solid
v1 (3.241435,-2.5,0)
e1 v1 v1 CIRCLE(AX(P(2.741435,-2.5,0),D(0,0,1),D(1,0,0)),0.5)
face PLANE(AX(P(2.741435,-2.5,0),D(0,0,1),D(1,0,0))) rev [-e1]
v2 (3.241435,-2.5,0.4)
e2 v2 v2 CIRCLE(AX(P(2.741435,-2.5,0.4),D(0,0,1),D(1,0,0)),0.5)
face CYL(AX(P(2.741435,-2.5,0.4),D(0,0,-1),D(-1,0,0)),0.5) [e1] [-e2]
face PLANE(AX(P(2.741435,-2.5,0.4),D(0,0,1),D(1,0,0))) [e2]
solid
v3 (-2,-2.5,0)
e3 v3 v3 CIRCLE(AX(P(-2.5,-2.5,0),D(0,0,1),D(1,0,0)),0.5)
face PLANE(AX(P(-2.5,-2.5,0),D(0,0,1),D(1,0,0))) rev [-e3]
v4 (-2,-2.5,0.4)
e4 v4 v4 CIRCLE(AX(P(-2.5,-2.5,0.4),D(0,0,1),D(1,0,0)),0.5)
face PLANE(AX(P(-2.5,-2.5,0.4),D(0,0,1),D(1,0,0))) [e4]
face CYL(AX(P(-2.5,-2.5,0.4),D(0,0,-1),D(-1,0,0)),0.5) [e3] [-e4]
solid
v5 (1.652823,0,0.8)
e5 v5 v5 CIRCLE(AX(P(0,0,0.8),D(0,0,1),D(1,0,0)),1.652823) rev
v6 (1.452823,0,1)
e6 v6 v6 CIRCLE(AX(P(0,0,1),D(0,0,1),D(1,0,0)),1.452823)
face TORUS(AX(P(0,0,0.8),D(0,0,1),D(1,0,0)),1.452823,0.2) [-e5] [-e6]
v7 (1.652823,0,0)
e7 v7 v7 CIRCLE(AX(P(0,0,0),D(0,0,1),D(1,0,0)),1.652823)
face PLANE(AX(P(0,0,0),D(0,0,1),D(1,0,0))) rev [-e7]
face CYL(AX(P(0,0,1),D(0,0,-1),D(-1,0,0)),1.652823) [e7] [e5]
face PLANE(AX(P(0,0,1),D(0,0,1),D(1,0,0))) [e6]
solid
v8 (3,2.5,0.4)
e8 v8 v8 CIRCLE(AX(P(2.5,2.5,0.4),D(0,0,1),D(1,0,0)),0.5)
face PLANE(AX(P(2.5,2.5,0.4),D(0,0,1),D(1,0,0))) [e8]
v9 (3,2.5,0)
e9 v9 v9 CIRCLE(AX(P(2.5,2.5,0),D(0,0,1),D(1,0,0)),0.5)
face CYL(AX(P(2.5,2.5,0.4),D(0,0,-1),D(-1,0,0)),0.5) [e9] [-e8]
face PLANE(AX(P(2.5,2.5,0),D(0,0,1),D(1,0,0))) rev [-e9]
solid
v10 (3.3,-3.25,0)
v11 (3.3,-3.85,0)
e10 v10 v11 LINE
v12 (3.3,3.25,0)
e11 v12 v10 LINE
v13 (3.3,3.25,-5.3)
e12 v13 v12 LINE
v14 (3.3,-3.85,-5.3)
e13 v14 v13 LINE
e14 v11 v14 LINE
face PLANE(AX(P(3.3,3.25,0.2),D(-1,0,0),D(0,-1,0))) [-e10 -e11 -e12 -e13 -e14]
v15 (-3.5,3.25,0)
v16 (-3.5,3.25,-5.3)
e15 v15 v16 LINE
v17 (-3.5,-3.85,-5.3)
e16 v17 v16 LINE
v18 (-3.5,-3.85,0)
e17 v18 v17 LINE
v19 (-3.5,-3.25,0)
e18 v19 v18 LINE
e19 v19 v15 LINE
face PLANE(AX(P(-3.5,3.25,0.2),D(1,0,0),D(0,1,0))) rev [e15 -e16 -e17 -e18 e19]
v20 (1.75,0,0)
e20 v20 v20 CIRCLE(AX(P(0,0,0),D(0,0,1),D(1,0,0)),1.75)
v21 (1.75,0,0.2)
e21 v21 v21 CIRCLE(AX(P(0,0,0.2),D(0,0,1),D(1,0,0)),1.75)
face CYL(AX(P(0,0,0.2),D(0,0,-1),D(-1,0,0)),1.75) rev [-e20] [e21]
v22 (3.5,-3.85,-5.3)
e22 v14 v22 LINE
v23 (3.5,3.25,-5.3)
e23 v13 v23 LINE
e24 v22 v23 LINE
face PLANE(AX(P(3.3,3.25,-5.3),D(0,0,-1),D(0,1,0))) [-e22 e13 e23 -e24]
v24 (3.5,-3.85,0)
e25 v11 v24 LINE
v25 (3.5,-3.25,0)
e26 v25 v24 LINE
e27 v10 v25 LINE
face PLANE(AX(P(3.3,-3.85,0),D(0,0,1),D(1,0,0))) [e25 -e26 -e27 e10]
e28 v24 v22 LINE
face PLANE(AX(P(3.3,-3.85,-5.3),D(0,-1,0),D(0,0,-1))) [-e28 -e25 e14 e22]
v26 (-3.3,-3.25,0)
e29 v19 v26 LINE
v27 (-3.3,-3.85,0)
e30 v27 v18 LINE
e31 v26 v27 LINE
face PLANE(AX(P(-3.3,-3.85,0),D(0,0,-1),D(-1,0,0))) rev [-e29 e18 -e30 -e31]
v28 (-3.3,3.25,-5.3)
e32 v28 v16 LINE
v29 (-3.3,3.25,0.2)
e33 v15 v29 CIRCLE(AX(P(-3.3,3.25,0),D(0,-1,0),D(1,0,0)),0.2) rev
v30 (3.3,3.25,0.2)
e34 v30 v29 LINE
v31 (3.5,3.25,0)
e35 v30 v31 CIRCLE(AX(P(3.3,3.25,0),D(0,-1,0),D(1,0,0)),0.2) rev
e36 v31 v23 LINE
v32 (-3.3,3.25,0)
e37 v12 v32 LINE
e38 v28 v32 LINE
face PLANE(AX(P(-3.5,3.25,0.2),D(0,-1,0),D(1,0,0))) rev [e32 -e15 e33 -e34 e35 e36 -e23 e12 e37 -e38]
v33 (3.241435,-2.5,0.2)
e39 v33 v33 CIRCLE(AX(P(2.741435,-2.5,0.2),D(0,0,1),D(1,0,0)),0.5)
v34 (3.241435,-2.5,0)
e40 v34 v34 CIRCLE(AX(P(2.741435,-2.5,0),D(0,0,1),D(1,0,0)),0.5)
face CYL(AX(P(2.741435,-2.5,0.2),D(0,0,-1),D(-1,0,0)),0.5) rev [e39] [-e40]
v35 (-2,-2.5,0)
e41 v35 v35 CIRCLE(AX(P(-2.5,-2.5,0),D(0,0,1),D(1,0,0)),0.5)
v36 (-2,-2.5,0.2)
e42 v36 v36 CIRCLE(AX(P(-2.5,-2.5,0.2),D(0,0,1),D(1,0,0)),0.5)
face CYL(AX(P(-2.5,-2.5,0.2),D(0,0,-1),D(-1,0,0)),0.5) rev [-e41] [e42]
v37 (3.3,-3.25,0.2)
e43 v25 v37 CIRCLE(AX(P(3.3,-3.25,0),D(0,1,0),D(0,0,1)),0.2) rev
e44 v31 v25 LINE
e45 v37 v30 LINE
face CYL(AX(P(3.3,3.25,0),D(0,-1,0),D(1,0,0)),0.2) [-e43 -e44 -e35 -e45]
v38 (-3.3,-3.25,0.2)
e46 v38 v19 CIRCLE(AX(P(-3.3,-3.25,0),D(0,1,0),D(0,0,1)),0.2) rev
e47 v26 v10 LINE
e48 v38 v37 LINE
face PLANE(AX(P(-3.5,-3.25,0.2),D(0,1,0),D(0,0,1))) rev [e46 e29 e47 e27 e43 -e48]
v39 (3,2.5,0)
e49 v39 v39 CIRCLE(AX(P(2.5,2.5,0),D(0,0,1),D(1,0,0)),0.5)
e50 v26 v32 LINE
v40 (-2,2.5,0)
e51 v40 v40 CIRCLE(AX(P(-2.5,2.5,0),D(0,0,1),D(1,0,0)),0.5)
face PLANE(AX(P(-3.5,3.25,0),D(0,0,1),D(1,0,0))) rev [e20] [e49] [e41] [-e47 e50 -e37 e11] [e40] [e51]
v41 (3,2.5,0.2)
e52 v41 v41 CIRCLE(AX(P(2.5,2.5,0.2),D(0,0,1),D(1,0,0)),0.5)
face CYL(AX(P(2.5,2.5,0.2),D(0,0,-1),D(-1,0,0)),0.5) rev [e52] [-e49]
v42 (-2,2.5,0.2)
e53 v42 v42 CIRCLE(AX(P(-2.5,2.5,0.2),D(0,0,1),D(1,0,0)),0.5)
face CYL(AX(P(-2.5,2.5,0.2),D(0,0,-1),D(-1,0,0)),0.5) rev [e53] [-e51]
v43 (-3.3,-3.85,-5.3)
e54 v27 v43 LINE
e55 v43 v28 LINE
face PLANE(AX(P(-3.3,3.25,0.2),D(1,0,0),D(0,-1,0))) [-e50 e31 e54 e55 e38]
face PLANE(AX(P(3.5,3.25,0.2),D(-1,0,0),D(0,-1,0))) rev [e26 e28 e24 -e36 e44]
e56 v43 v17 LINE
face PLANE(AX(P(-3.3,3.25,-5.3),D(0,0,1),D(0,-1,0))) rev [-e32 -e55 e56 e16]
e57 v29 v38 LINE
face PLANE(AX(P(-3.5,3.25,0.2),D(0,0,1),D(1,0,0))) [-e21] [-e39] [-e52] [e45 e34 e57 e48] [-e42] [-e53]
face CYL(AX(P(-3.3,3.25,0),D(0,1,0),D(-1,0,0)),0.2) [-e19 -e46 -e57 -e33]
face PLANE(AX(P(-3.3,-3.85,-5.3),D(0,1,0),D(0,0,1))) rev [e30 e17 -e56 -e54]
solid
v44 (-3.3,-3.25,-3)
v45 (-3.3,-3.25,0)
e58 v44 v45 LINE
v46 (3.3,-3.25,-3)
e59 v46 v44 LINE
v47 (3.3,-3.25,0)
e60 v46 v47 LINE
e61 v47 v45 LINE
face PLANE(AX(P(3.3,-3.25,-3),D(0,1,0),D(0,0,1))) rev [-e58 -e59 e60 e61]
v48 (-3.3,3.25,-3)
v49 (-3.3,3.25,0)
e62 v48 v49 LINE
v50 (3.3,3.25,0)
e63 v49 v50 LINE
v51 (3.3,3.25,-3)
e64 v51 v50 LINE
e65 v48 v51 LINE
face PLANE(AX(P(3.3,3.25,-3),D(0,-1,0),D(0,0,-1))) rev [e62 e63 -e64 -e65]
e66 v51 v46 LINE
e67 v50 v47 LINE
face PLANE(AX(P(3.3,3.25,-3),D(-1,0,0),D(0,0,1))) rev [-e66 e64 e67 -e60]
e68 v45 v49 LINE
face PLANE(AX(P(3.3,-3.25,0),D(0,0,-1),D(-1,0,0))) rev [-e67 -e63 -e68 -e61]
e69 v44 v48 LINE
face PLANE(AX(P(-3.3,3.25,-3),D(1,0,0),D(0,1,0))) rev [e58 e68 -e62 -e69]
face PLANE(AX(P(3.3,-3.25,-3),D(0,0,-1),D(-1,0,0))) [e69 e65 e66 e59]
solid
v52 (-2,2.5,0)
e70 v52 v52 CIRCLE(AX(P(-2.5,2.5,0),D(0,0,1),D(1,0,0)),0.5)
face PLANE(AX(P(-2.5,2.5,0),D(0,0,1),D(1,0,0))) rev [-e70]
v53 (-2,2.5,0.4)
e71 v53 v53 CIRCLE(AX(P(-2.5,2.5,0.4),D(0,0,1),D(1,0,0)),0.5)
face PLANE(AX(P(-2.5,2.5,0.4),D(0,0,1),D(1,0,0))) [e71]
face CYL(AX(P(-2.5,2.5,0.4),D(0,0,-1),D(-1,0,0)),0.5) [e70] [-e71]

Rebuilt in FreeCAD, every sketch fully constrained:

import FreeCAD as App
import Part
import Sketcher

V = App.Vector
Q = App.Units.Quantity


def edges_at(feature, points):
    """Names of the edges that pass closest to the given points."""
    edges = feature.Shape.Edges
    near = lambda p: min(range(len(edges)), key=lambda i: edges[i].distToShape(Part.Vertex(*p))[0])
    return sorted({f"Edge{near(p) + 1}" for p in points})

doc = App.newDocument("Part")
body = doc.addObject("PartDesign::Body", "Body")

sketch1 = body.newObject("Sketcher::SketchObject", "Sketch")
sketch1.AttachmentSupport = (doc.getObject("XY_Plane"), [""])
sketch1.MapMode = "FlatFace"
sketch1.addGeometry(Part.LineSegment(V(-3.5, 3.2, 0), V(-3.5, -3.2, 0)), False)
sketch1.addGeometry(Part.LineSegment(V(-3.5, -3.2, 0), V(3.5, -3.2, 0)), False)
sketch1.addGeometry(Part.LineSegment(V(3.5, -3.2, 0), V(3.5, 3.2, 0)), False)
sketch1.addGeometry(Part.LineSegment(V(3.5, 3.2, 0), V(-3.5, 3.2, 0)), False)
sketch1.addGeometry(Part.Circle(V(-2.5, -2.5, 0), V(0, 0, 1), 0.5), False)
sketch1.addGeometry(Part.Circle(V(2.7, -2.5, 0), V(0, 0, 1), 0.5), False)
sketch1.addGeometry(Part.Circle(V(0, 0, 0), V(0, 0, 1), 1.8), False)
sketch1.addGeometry(Part.Circle(V(-2.5, 2.5, 0), V(0, 0, 1), 0.5), False)
sketch1.addGeometry(Part.Circle(V(2.5, 2.5, 0), V(0, 0, 1), 0.5), False)
sketch1.addConstraint(Sketcher.Constraint("Coincident", 0, 2, 1, 1))
sketch1.addConstraint(Sketcher.Constraint("Coincident", 1, 2, 2, 1))
sketch1.addConstraint(Sketcher.Constraint("Coincident", 2, 2, 3, 1))
sketch1.addConstraint(Sketcher.Constraint("Coincident", 3, 2, 0, 1))
sketch1.addConstraint(Sketcher.Constraint("Vertical", 0))
sketch1.addConstraint(Sketcher.Constraint("Horizontal", 1))
sketch1.addConstraint(Sketcher.Constraint("Vertical", 2))
sketch1.addConstraint(Sketcher.Constraint("Horizontal", 3))
sketch1.addConstraint(Sketcher.Constraint("Coincident", 6, 3, -1, 1))
sketch1.addConstraint(Sketcher.Constraint("Equal", 4, 5))
sketch1.addConstraint(Sketcher.Constraint("Equal", 5, 7))
sketch1.addConstraint(Sketcher.Constraint("Equal", 7, 8))
sketch1.addConstraint(Sketcher.Constraint("Symmetric", 4, 3, 8, 3, -1, 1))
sketch1.addConstraint(Sketcher.Constraint("Symmetric", 0, 2, 2, 2, -1, 1))
sketch1.addConstraint(Sketcher.Constraint("Symmetric", 7, 3, 8, 3, -2))
sketch1.addConstraint(Sketcher.Constraint("Horizontal", 4, 3, 5, 3))
sketch1.addConstraint(Sketcher.Constraint("Diameter", 4, Q("1 mm")))
sketch1.addConstraint(Sketcher.Constraint("Diameter", 6, Q("3.5 mm")))
sketch1.addConstraint(Sketcher.Constraint("DistanceX", 1, 1, 1, 2, Q("7 mm")))
sketch1.addConstraint(Sketcher.Constraint("DistanceY", 0, 2, 0, 1, Q("6.5 mm")))
sketch1.addConstraint(Sketcher.Constraint("DistanceY", 4, 3, 7, 3, Q("5 mm")))
sketch1.addConstraint(Sketcher.Constraint("DistanceX", 7, 3, 8, 3, Q("5 mm")))
sketch1.addConstraint(Sketcher.Constraint("DistanceX", -1, 1, 5, 3, Q("2.741435 mm")))
pad1 = body.newObject("PartDesign::Pad", "Pad")
pad1.Profile = sketch1
pad1.Length = 0.2

sketch2 = body.newObject("Sketcher::SketchObject", "Sketch001")
sketch2.AttachmentSupport = (doc.getObject("YZ_Plane"), [""])
sketch2.MapMode = "FlatFace"
sketch2.AttachmentOffset = App.Placement(V(0, 0, 3.5), App.Rotation())
sketch2.addGeometry(Part.LineSegment(V(3.25, -5.3, 0), V(3.25, 0.2, 0)), False)
sketch2.addGeometry(Part.LineSegment(V(3.25, 0.2, 0), V(-3.25, 0.2, 0)), False)
sketch2.addGeometry(Part.LineSegment(V(-3.25, 0.2, 0), V(-3.25, 0, 0)), False)
sketch2.addGeometry(Part.LineSegment(V(-3.25, 0, 0), V(-3.85, 0, 0)), False)
sketch2.addGeometry(Part.LineSegment(V(-3.85, 0, 0), V(-3.85, -5.3, 0)), False)
sketch2.addGeometry(Part.LineSegment(V(-3.85, -5.3, 0), V(3.25, -5.3, 0)), False)
sketch2.addConstraint(Sketcher.Constraint("Coincident", 0, 2, 1, 1))
sketch2.addConstraint(Sketcher.Constraint("Coincident", 1, 2, 2, 1))
sketch2.addConstraint(Sketcher.Constraint("Coincident", 2, 2, 3, 1))
sketch2.addConstraint(Sketcher.Constraint("Coincident", 3, 2, 4, 1))
sketch2.addConstraint(Sketcher.Constraint("Coincident", 4, 2, 5, 1))
sketch2.addConstraint(Sketcher.Constraint("Coincident", 5, 2, 0, 1))
sketch2.addConstraint(Sketcher.Constraint("Vertical", 0))
sketch2.addConstraint(Sketcher.Constraint("Horizontal", 1))
sketch2.addConstraint(Sketcher.Constraint("Vertical", 2))
sketch2.addConstraint(Sketcher.Constraint("Horizontal", 3))
sketch2.addConstraint(Sketcher.Constraint("Vertical", 4))
sketch2.addConstraint(Sketcher.Constraint("Horizontal", 5))
sketch2.addConstraint(Sketcher.Constraint("PointOnObject", 2, 2, -1))
sketch2.addConstraint(Sketcher.Constraint("DistanceX", 1, 2, 1, 1, Q("6.5 mm")))
sketch2.addConstraint(Sketcher.Constraint("DistanceX", 3, 2, 3, 1, Q("0.6 mm")))
sketch2.addConstraint(Sketcher.Constraint("DistanceY", 0, 1, 0, 2, Q("5.5 mm")))
sketch2.addConstraint(Sketcher.Constraint("DistanceY", 2, 2, 2, 1, Q("0.2 mm")))
sketch2.addConstraint(Sketcher.Constraint("DistanceX", -1, 1, 0, 2, Q("3.25 mm")))
pad2 = body.newObject("PartDesign::Pad", "Pad001")
pad2.Profile = sketch2
pad2.Length = 0.2
pad2.Reversed = True
doc.recompute()

mirrored = body.newObject("PartDesign::Mirrored", "Mirrored")
mirrored.Originals = [pad2]
mirrored.MirrorPlane = (doc.getObject("YZ_Plane"), [""])
body.Tip = mirrored
doc.recompute()

fillet = body.newObject("PartDesign::Fillet", "Fillet")
fillet.Base = (mirrored, edges_at(mirrored, [(-3.5, 0, 0.2), (3.5, 0, 0.2)]))
fillet.Radius = 0.2
body2 = doc.addObject("PartDesign::Body", "Body001")

sketch3 = body2.newObject("Sketcher::SketchObject", "Sketch002")
sketch3.AttachmentSupport = (doc.getObject("XY_Plane001"), [""])
sketch3.MapMode = "FlatFace"
sketch3.addGeometry(Part.LineSegment(V(3, 3, 0), V(3, -3, 0)), False)
sketch3.addGeometry(Part.LineSegment(V(3, -3, 0), V(-3, -3, 0)), False)
sketch3.addGeometry(Part.LineSegment(V(-3, -3, 0), V(-3, 3, 0)), False)
sketch3.addGeometry(Part.LineSegment(V(-3, 3, 0), V(3, 3, 0)), False)
sketch3.addConstraint(Sketcher.Constraint("Coincident", 0, 2, 1, 1))
sketch3.addConstraint(Sketcher.Constraint("Coincident", 1, 2, 2, 1))
sketch3.addConstraint(Sketcher.Constraint("Coincident", 2, 2, 3, 1))
sketch3.addConstraint(Sketcher.Constraint("Coincident", 3, 2, 0, 1))
sketch3.addConstraint(Sketcher.Constraint("Vertical", 0))
sketch3.addConstraint(Sketcher.Constraint("Horizontal", 1))
sketch3.addConstraint(Sketcher.Constraint("Vertical", 2))
sketch3.addConstraint(Sketcher.Constraint("Horizontal", 3))
sketch3.addConstraint(Sketcher.Constraint("Symmetric", 0, 2, 2, 2, -1, 1))
sketch3.addConstraint(Sketcher.Constraint("DistanceX", 1, 2, 1, 1, Q("6.6 mm")))
sketch3.addConstraint(Sketcher.Constraint("DistanceY", 0, 2, 0, 1, Q("6.5 mm")))
pad3 = body2.newObject("PartDesign::Pad", "Pad002")
pad3.Profile = sketch3
pad3.Length = 3
pad3.Reversed = True
body3 = doc.addObject("PartDesign::Body", "Body002")

sketch4 = body3.newObject("Sketcher::SketchObject", "Sketch003")
sketch4.AttachmentSupport = (doc.getObject("XY_Plane002"), [""])
sketch4.MapMode = "FlatFace"
sketch4.addGeometry(Part.Circle(V(0, 0, 0), V(0, 0, 1), 1.7), False)
sketch4.addConstraint(Sketcher.Constraint("Coincident", 0, 3, -1, 1))
sketch4.addConstraint(Sketcher.Constraint("Diameter", 0, Q("3.305647 mm")))
pad4 = body3.newObject("PartDesign::Pad", "Pad003")
pad4.Profile = sketch4
pad4.Length = 1
doc.recompute()

fillet2 = body3.newObject("PartDesign::Fillet", "Fillet001")
fillet2.Base = (pad4, edges_at(pad4, [(-1.653, 0, 1)]))
fillet2.Radius = 0.2
body4 = doc.addObject("PartDesign::Body", "Body003")

sketch5 = body4.newObject("Sketcher::SketchObject", "Sketch004")
sketch5.AttachmentSupport = (doc.getObject("XY_Plane003"), [""])
sketch5.MapMode = "FlatFace"
sketch5.addGeometry(Part.Circle(V(2.5, 2.5, 0), V(0, 0, 1), 0.5), False)
sketch5.addConstraint(Sketcher.Constraint("Diameter", 0, Q("1 mm")))
sketch5.addConstraint(Sketcher.Constraint("DistanceX", -1, 1, 0, 3, Q("2.5 mm")))
sketch5.addConstraint(Sketcher.Constraint("DistanceY", -1, 1, 0, 3, Q("2.5 mm")))
pad5 = body4.newObject("PartDesign::Pad", "Pad004")
pad5.Profile = sketch5
pad5.Length = 0.4
body5 = doc.addObject("PartDesign::Body", "Body004")

sketch6 = body5.newObject("Sketcher::SketchObject", "Sketch005")
sketch6.AttachmentSupport = (doc.getObject("XY_Plane004"), [""])
sketch6.MapMode = "FlatFace"
sketch6.addGeometry(Part.Circle(V(-2.5, 2.5, 0), V(0, 0, 1), 0.5), False)
sketch6.addConstraint(Sketcher.Constraint("Diameter", 0, Q("1 mm")))
sketch6.addConstraint(Sketcher.Constraint("DistanceX", 0, 3, -1, 1, Q("2.5 mm")))
sketch6.addConstraint(Sketcher.Constraint("DistanceY", -1, 1, 0, 3, Q("2.5 mm")))
pad6 = body5.newObject("PartDesign::Pad", "Pad005")
pad6.Profile = sketch6
pad6.Length = 0.4
body6 = doc.addObject("PartDesign::Body", "Body005")

sketch7 = body6.newObject("Sketcher::SketchObject", "Sketch006")
sketch7.AttachmentSupport = (doc.getObject("XY_Plane005"), [""])
sketch7.MapMode = "FlatFace"
sketch7.addGeometry(Part.Circle(V(-2.5, -2.5, 0), V(0, 0, 1), 0.5), False)
sketch7.addConstraint(Sketcher.Constraint("Diameter", 0, Q("1 mm")))
sketch7.addConstraint(Sketcher.Constraint("DistanceX", 0, 3, -1, 1, Q("2.5 mm")))
sketch7.addConstraint(Sketcher.Constraint("DistanceY", 0, 3, -1, 1, Q("2.5 mm")))
pad7 = body6.newObject("PartDesign::Pad", "Pad006")
pad7.Profile = sketch7
pad7.Length = 0.4
body7 = doc.addObject("PartDesign::Body", "Body006")

sketch8 = body7.newObject("Sketcher::SketchObject", "Sketch007")
sketch8.AttachmentSupport = (doc.getObject("XY_Plane006"), [""])
sketch8.MapMode = "FlatFace"
sketch8.addGeometry(Part.Circle(V(2.7, -2.5, 0), V(0, 0, 1), 0.5), False)
sketch8.addConstraint(Sketcher.Constraint("Diameter", 0, Q("1 mm")))
sketch8.addConstraint(Sketcher.Constraint("DistanceY", 0, 3, -1, 1, Q("2.5 mm")))
sketch8.addConstraint(Sketcher.Constraint("DistanceX", -1, 1, 0, 3, Q("2.741435 mm")))
pad8 = body7.newObject("PartDesign::Pad", "Pad007")
pad8.Profile = sketch8
pad8.Length = 0.4

doc.recompute()
